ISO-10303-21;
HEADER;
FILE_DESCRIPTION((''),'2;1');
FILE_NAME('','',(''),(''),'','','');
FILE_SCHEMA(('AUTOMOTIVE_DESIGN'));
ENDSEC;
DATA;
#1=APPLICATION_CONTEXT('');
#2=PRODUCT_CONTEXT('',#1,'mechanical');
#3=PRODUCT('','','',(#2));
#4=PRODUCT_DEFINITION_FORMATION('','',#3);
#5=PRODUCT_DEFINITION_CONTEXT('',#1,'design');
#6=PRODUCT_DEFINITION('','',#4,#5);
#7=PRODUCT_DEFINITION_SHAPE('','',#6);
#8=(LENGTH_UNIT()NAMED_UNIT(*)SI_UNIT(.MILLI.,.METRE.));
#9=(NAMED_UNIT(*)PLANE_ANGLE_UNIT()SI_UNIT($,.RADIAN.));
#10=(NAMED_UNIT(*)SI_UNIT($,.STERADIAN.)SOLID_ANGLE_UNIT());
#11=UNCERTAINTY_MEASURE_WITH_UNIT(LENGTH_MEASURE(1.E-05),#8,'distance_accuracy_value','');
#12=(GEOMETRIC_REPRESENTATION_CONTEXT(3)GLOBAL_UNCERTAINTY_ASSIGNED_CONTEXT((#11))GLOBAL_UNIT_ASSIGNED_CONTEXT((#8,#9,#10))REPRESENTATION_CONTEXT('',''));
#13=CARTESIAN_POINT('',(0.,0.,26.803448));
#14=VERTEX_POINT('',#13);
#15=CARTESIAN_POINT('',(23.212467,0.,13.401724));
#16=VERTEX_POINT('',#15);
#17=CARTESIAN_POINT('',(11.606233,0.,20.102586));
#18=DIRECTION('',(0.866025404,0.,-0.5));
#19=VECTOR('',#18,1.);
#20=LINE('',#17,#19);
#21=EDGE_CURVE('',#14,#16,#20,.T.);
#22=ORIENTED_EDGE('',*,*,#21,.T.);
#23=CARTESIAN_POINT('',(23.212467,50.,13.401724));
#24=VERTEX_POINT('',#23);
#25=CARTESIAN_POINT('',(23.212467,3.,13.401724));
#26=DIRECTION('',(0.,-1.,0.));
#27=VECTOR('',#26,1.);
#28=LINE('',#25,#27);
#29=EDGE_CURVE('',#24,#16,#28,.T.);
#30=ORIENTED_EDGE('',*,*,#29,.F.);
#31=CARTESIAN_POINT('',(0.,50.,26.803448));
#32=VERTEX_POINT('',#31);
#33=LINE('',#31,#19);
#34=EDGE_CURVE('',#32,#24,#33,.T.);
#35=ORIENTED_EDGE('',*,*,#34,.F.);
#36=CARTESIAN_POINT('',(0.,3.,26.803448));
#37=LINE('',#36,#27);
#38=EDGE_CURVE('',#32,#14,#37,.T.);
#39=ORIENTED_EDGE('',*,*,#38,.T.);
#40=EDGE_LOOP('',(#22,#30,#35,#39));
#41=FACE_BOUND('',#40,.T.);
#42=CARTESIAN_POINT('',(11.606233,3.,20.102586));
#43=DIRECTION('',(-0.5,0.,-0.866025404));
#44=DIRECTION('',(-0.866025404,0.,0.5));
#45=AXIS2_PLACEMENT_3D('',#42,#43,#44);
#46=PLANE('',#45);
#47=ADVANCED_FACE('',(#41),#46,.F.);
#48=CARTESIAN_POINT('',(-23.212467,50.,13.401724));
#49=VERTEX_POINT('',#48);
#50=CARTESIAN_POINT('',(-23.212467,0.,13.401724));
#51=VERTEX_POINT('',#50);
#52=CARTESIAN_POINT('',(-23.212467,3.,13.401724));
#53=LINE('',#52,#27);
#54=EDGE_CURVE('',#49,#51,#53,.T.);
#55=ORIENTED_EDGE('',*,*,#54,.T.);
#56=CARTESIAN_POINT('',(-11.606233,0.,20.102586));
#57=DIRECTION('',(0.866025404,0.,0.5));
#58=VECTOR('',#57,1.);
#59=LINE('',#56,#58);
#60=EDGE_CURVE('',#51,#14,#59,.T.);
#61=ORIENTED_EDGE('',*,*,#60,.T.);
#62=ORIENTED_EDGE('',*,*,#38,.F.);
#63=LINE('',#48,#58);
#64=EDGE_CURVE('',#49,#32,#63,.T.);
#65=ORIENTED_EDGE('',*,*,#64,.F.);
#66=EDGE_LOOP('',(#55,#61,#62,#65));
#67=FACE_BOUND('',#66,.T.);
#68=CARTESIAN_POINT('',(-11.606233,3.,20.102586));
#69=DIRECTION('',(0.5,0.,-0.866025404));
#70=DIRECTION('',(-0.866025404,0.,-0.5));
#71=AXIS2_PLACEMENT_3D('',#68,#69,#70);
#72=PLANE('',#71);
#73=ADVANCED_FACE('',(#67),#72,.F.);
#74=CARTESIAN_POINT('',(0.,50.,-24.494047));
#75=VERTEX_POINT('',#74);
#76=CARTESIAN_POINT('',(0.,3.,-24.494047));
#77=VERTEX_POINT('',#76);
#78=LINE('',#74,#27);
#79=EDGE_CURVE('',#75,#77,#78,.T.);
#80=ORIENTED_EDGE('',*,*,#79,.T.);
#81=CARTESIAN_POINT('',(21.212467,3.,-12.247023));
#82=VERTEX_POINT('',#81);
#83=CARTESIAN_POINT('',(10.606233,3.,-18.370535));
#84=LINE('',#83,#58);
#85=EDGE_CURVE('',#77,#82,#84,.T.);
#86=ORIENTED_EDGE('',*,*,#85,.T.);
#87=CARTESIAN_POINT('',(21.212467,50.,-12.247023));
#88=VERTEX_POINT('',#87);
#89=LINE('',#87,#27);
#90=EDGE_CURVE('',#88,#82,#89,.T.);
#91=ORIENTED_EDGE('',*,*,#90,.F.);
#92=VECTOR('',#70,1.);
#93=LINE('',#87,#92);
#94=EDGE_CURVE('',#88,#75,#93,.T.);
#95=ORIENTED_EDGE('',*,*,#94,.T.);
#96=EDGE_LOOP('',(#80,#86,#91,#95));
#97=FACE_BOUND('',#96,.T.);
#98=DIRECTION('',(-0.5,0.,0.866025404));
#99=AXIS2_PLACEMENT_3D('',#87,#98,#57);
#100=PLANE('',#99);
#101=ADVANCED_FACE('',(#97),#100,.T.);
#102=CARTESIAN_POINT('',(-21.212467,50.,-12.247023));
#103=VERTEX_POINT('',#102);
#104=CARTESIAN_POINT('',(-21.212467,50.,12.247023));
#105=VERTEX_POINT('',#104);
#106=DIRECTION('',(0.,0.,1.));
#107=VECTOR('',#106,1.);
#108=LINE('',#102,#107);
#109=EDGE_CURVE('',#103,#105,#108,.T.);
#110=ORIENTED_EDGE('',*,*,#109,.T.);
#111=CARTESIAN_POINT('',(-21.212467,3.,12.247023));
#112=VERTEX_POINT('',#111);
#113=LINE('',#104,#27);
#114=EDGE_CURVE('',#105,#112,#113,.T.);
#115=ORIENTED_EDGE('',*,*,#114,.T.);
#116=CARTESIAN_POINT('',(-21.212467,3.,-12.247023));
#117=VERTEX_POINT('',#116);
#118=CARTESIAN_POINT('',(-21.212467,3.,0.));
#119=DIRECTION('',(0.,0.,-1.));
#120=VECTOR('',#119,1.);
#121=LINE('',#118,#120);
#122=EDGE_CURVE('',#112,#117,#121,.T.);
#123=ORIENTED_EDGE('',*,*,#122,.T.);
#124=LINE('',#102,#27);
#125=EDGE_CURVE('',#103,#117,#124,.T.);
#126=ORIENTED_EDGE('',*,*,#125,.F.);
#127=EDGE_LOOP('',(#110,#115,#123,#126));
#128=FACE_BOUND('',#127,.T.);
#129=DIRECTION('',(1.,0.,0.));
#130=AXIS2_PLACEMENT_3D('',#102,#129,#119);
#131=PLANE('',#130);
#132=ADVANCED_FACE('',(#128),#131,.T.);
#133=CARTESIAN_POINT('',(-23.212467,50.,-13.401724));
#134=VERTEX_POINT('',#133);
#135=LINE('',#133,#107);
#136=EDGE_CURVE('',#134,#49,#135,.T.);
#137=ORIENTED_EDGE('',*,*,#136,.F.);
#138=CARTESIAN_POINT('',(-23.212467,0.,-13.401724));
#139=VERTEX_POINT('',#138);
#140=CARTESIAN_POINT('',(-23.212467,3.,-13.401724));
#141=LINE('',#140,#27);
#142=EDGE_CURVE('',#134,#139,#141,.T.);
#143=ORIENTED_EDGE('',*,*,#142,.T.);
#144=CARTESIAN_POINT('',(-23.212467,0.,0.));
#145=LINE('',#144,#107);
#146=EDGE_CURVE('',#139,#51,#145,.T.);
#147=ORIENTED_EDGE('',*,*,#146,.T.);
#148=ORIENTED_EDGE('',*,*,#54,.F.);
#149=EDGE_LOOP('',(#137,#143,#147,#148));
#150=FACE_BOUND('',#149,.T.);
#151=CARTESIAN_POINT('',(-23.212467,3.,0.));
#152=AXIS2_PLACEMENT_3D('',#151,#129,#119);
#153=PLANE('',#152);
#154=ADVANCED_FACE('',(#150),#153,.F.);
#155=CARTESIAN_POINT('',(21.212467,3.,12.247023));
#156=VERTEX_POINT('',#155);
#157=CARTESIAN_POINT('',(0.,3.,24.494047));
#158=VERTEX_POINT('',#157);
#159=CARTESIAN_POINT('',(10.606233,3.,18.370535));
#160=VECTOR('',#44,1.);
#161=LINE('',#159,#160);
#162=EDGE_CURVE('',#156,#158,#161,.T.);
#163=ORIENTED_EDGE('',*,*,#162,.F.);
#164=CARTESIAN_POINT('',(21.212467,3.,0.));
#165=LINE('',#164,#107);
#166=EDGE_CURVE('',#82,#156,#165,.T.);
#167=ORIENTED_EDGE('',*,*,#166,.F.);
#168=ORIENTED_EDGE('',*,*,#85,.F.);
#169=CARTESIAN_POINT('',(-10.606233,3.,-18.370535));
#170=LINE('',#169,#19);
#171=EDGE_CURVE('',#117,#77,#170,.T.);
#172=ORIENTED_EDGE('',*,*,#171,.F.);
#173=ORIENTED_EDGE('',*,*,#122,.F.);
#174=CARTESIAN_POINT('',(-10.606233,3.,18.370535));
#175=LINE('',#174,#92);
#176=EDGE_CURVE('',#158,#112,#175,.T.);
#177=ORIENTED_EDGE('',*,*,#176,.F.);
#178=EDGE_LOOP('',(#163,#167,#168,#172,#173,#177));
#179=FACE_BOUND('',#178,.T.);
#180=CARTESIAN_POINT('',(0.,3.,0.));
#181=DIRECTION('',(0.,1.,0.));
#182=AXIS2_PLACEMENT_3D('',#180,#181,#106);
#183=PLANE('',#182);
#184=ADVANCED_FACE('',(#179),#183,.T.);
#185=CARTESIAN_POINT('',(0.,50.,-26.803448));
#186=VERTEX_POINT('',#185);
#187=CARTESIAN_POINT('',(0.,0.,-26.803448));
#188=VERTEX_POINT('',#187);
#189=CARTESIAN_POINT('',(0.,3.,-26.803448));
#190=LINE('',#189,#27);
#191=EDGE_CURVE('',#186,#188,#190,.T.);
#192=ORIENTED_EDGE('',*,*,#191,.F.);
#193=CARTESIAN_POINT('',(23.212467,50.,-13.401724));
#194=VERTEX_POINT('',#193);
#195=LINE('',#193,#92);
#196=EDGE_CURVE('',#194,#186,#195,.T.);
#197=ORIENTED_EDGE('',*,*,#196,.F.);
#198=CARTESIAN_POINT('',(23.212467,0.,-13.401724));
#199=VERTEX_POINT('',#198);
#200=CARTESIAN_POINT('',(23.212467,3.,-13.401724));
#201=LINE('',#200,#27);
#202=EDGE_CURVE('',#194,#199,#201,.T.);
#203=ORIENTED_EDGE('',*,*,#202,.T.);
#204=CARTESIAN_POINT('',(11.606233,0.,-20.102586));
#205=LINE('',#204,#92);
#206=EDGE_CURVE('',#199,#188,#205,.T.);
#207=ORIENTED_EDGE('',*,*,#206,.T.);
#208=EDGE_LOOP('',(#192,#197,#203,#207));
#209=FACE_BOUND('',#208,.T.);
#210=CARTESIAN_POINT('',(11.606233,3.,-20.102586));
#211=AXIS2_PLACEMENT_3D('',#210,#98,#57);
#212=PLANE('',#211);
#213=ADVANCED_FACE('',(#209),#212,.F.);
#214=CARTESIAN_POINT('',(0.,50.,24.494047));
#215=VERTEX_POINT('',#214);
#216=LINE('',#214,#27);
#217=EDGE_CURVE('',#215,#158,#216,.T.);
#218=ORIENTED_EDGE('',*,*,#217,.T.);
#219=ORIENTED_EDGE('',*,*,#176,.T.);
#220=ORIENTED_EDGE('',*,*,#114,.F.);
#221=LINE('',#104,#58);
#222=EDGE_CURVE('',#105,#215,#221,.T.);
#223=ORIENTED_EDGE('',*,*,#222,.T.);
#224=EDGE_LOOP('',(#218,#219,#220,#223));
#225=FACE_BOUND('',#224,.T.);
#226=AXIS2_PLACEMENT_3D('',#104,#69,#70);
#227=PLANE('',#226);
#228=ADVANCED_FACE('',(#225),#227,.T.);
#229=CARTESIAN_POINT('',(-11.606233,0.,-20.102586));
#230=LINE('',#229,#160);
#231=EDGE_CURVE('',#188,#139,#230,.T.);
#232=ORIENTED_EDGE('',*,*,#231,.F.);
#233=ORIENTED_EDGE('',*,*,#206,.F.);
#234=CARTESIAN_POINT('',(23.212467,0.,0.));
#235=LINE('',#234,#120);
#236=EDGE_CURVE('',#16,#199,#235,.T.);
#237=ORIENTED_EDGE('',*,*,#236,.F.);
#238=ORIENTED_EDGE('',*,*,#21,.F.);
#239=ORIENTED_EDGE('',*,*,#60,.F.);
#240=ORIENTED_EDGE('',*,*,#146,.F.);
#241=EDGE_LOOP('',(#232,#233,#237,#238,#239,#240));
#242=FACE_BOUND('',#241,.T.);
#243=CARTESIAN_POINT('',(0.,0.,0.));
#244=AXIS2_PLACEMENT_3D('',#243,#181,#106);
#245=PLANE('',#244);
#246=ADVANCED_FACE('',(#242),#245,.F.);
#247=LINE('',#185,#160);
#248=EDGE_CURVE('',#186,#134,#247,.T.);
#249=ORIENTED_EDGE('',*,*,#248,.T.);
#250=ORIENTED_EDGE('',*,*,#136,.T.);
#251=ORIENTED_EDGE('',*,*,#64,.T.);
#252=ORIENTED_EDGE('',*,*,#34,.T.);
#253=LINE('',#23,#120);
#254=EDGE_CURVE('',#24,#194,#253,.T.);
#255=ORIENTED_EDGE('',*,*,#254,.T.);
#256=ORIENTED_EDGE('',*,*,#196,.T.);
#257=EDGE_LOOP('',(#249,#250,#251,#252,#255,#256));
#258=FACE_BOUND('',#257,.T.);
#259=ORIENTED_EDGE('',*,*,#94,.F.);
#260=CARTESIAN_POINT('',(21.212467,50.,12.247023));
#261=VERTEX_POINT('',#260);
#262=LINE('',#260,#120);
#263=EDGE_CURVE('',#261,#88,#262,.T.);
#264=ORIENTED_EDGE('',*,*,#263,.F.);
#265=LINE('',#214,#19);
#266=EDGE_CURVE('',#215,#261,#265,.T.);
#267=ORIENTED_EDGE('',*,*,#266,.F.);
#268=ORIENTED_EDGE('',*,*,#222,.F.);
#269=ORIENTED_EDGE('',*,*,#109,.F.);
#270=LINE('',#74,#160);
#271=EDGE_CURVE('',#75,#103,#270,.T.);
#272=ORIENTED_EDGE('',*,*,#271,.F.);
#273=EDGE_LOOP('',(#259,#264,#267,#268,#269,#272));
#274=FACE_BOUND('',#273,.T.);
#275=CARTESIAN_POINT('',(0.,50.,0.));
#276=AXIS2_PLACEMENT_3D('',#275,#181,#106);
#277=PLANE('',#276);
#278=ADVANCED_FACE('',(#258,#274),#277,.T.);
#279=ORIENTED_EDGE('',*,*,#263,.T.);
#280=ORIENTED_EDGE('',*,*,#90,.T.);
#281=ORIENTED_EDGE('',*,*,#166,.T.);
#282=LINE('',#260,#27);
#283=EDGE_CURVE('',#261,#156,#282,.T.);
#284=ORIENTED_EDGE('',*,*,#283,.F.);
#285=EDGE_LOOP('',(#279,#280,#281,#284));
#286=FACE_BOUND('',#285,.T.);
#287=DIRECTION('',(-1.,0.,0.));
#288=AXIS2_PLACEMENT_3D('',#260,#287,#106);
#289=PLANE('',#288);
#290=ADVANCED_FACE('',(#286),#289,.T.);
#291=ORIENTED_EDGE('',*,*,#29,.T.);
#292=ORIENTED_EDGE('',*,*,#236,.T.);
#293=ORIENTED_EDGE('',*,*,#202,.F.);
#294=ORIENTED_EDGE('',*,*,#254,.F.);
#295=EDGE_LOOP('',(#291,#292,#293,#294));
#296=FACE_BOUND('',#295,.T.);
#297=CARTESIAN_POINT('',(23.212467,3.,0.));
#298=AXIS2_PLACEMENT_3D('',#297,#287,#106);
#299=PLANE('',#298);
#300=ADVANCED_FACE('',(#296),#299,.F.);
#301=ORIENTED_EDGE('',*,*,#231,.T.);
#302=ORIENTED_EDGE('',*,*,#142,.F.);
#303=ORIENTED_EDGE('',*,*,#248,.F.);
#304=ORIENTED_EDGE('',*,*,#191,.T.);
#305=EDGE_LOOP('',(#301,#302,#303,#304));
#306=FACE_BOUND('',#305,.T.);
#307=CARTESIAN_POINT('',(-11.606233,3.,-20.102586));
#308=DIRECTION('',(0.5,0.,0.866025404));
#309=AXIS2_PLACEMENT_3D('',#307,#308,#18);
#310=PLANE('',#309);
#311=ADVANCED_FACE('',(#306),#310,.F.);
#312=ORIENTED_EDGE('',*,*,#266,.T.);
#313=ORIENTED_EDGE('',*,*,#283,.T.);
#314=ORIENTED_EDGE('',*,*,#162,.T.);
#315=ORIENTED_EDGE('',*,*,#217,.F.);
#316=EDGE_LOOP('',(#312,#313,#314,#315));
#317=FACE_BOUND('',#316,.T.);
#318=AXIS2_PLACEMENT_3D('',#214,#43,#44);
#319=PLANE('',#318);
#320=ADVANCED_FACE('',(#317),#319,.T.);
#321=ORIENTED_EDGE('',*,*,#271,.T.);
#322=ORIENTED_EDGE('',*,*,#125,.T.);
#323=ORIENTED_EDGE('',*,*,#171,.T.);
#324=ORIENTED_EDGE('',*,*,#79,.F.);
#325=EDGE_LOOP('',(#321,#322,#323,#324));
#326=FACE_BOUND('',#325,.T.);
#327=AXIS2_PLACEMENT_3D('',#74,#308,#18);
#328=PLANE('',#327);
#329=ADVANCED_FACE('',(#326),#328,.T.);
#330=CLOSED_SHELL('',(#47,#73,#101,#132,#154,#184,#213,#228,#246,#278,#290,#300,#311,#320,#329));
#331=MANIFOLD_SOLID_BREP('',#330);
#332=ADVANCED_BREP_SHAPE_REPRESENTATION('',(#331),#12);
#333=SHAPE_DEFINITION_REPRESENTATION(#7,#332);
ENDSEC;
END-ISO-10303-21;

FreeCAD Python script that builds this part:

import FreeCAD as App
import Part
import Sketcher
Q = App.Units.Quantity


def add_polygon(sketch, points):
    """Adds a closed chain of lines whose ends are joined by coincident constraints."""
    first, n = sketch.GeometryCount, len(points)
    for a, b in zip(points, points[1:] + points[:1]):
        sketch.addGeometry(Part.LineSegment(App.Vector(*a, 0), App.Vector(*b, 0)), False)
    for i in range(n):
        sketch.addConstraint(Sketcher.Constraint("Coincident", first + i, 2, first + (i + 1) % n, 1))

doc = App.newDocument("Part")
body = doc.addObject("PartDesign::Body", "Body")

# Sketch on XZ plane
sketch1 = body.newObject("Sketcher::SketchObject", "Sketch")
sketch1.AttachmentSupport = (doc.getObject("XZ_Plane"), [""])
sketch1.MapMode = "FlatFace"
add_polygon(sketch1, [(23, 13), (23, -13), (0, -27), (-23, -13), (-23, 13), (0, 27)])  # lines 0-5
sketch1.addConstraint(Sketcher.Constraint("Vertical", 0))
sketch1.addConstraint(Sketcher.Constraint("Vertical", 3))
sketch1.addConstraint(Sketcher.Constraint("Symmetric", 0, 2, 3, 2, -1, 1))
sketch1.addConstraint(Sketcher.Constraint("Symmetric", 1, 2, 4, 2, -1, 1))
sketch1.addConstraint(Sketcher.Constraint("PointOnObject", 1, 2, -2))
sketch1.addConstraint(Sketcher.Constraint("Parallel", 2, 5))
sketch1.addConstraint(Sketcher.Constraint("Horizontal", 0, 2, 2, 2))
sketch1.addConstraint(Sketcher.Constraint("Angle", 1, Q("-150 deg")))
sketch1.addConstraint(Sketcher.Constraint("DistanceY", 0, 2, 0, 1, Q("26.803448 mm")))
sketch1.addConstraint(Sketcher.Constraint("DistanceY", 1, 2, 3, 2, Q("40.205172 mm")))
pad1 = body.newObject("PartDesign::Pad", "Pad")
pad1.Profile = sketch1
pad1.Length = 3
pad1.Reversed = True

# Sketch on XZ plane
sketch2 = body.newObject("Sketcher::SketchObject", "Sketch001")
sketch2.AttachmentSupport = (doc.getObject("XZ_Plane"), [""])
sketch2.MapMode = "FlatFace"
add_polygon(sketch2, [(0, -27), (-23, -13), (-23, 13), (0, 27), (23, 13), (23, -13)])  # lines 0-5
add_polygon(sketch2, [(0, -24), (21, -12), (21, 12), (0, 24), (-21, 12), (-21, -12)])  # lines 6-11
sketch2.addConstraint(Sketcher.Constraint("Vertical", 1))
sketch2.addConstraint(Sketcher.Constraint("Vertical", 4))
sketch2.addConstraint(Sketcher.Constraint("Vertical", 7))
sketch2.addConstraint(Sketcher.Constraint("Vertical", 10))
sketch2.addConstraint(Sketcher.Constraint("Symmetric", 0, 2, 3, 2, -1, 1))
sketch2.addConstraint(Sketcher.Constraint("Symmetric", 2, 2, 5, 2, -1, 1))
sketch2.addConstraint(Sketcher.Constraint("Symmetric", 6, 2, 9, 2, -1, 1))
sketch2.addConstraint(Sketcher.Constraint("Symmetric", 8, 2, 11, 2, -1, 1))
sketch2.addConstraint(Sketcher.Constraint("PointOnObject", 2, 2, -2))
sketch2.addConstraint(Sketcher.Constraint("PointOnObject", 8, 2, -2))
sketch2.addConstraint(Sketcher.Constraint("Parallel", 2, 5))
sketch2.addConstraint(Sketcher.Constraint("Parallel", 5, 6))
sketch2.addConstraint(Sketcher.Constraint("Parallel", 3, 8))
sketch2.addConstraint(Sketcher.Constraint("Parallel", 8, 11))
sketch2.addConstraint(Sketcher.Constraint("Horizontal", 1, 2, 3, 2))
sketch2.addConstraint(Sketcher.Constraint("Angle", 0, Q("150 deg")))
sketch2.addConstraint(Sketcher.Constraint("DistanceX", 6, 2, 4, 2, Q("2 mm")))
sketch2.addConstraint(Sketcher.Constraint("DistanceY", 4, 2, 6, 2, Q("1.154701 mm")))
sketch2.addConstraint(Sketcher.Constraint("DistanceY", 1, 1, 1, 2, Q("26.803448 mm")))
sketch2.addConstraint(Sketcher.Constraint("DistanceY", 0, 2, 2, 2, Q("40.205172 mm")))
pad2 = body.newObject("PartDesign::Pad", "Pad001")
pad2.Profile = sketch2
pad2.Length = 50
pad2.Reversed = True

doc.recompute()
